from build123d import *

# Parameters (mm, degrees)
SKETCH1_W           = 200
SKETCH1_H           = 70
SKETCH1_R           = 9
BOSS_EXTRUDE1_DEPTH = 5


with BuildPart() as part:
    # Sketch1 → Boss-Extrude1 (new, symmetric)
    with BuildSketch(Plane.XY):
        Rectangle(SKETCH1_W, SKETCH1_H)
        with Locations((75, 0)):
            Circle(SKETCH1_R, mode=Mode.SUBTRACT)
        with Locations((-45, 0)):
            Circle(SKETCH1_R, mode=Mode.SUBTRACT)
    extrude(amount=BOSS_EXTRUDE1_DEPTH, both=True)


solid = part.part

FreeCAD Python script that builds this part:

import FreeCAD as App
import Part
import Sketcher

V = App.Vector

doc = App.newDocument("Part")
body = doc.addObject("PartDesign::Body", "Body")

sketch1 = doc.addObject("Sketcher::SketchObject", "Sketch")
body.addObject(sketch1)
sketch1.AttachmentSupport = (doc.XY_Plane, [""])
sketch1.MapMode = "FlatFace"
sketch1.addGeometry([
    Part.LineSegment(V(-100, 35, 0), V(-100, -35, 0)),
    Part.LineSegment(V(-100, -35, 0), V(100, -35, 0)),
    Part.LineSegment(V(100, -35, 0), V(100, 35, 0)),
    Part.LineSegment(V(100, 35, 0), V(-100, 35, 0)),
    Part.Circle(V(-45, 0, 0), V(0, 0, 1), 9),
    Part.Circle(V(75, 0, 0), V(0, 0, 1), 9),
], False)
sketch1.addConstraint([
    Sketcher.Constraint("Coincident", 0, 2, 1, 1),
    Sketcher.Constraint("Coincident", 1, 2, 2, 1),
    Sketcher.Constraint("Coincident", 2, 2, 3, 1),
    Sketcher.Constraint("Coincident", 3, 2, 0, 1),
    Sketcher.Constraint("Vertical", 0),
    Sketcher.Constraint("Horizontal", 1),
    Sketcher.Constraint("Vertical", 2),
    Sketcher.Constraint("Horizontal", 3),
    Sketcher.Constraint("Equal", 4, 5),
    Sketcher.Constraint("Symmetric", 0, 2, 2, 2, -1, 1),
    Sketcher.Constraint("PointOnObject", 4, 3, -1),
    Sketcher.Constraint("PointOnObject", 5, 3, -1),
    Sketcher.Constraint("Diameter", 4, 18.0),
    Sketcher.Constraint("DistanceX", 1, 1, 1, 2, 200.0),
    Sketcher.Constraint("DistanceY", 0, 2, 0, 1, 70.0),
    Sketcher.Constraint("DistanceX", 4, 3, -1, 1, 45.0),
    Sketcher.Constraint("DistanceX", -1, 1, 5, 3, 75.0),
])
pad1 = doc.addObject("PartDesign::Pad", "Pad")
body.addObject(pad1)
pad1.Profile = sketch1
pad1.Length = 10
pad1.Midplane = True

doc.recompute()
